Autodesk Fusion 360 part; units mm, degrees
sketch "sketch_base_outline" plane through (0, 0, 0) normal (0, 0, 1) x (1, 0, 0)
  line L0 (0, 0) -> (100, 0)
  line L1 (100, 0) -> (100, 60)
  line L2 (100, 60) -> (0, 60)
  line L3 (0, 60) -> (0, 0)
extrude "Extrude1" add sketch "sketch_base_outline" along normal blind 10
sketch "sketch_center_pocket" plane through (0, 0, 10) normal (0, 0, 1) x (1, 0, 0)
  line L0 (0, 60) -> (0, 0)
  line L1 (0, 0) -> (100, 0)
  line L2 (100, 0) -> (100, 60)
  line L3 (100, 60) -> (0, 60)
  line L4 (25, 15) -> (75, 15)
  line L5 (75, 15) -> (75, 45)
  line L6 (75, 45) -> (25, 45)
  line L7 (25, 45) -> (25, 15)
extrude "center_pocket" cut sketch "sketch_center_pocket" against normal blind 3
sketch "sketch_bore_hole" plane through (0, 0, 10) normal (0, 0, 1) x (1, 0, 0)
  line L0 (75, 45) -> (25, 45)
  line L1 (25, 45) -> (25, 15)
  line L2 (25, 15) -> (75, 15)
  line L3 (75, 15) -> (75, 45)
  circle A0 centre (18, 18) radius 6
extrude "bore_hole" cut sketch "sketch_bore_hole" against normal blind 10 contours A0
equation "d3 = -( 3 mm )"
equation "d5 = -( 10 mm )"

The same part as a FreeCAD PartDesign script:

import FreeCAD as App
import Part
import Sketcher
Q = App.Units.Quantity

doc = App.newDocument("Part")
params = doc.addObject("Spreadsheet::Sheet", "Params")
for row, (alias, value) in enumerate([
    ("sketch1_width", "100 mm"),
    ("sketch1_height", "60 mm"),
    ("pad1_length", "10 mm"),
    ("sketch2_width", "100 mm"),
    ("sketch2_width2", "50 mm"),
    ("sketch2_height", "60 mm"),
    ("sketch2_height2", "30 mm"),
    ("pocket1_length", "3 mm"),
    ("sketch3_diameter", "12 mm"),
    ("pocket2_length", "10 mm"),
], start=1):
    params.set(f"A{row}", alias)
    params.set(f"B{row}", "=" + value)
    params.setAlias(f"B{row}", alias)

body = doc.addObject("PartDesign::Body", "Body")

# Sketch on XY plane
sketch1 = body.newObject("Sketcher::SketchObject", "Sketch")
sketch1.AttachmentSupport = (doc.getObject("XY_Plane"), [""])
sketch1.MapMode = "FlatFace"
sketch1.addGeometry([
    Part.LineSegment(App.Vector(0, 60, 0), App.Vector(0, 0, 0)),
    Part.LineSegment(App.Vector(0, 0, 0), App.Vector(100, 0, 0)),
    Part.LineSegment(App.Vector(100, 0, 0), App.Vector(100, 60, 0)),
    Part.LineSegment(App.Vector(100, 60, 0), App.Vector(0, 60, 0)),
], False)
sketch1.addConstraint([
    Sketcher.Constraint("Coincident", 0, 2, 1, 1),
    Sketcher.Constraint("Coincident", 1, 2, 2, 1),
    Sketcher.Constraint("Coincident", 2, 2, 3, 1),
    Sketcher.Constraint("Coincident", 3, 2, 0, 1),
    Sketcher.Constraint("Vertical", 0),
    Sketcher.Constraint("Horizontal", 1),
    Sketcher.Constraint("Vertical", 2),
    Sketcher.Constraint("Horizontal", 3),
    Sketcher.Constraint("Coincident", 0, 2, -1, 1),
    Sketcher.Constraint("DistanceX", 1, 1, 1, 2, Q("100 mm")),
    Sketcher.Constraint("DistanceY", 0, 2, 0, 1, Q("60 mm")),
])
sketch1.setExpression("Constraints[9]", "Params.sketch1_width")
sketch1.setExpression("Constraints[10]", "Params.sketch1_height")
pad1 = body.newObject("PartDesign::Pad", "Pad")
pad1.Profile = sketch1
pad1.setExpression("Length", "Params.pad1_length")

# Sketch on XY plane
sketch2 = body.newObject("Sketcher::SketchObject", "Sketch001")
sketch2.AttachmentSupport = (doc.getObject("XY_Plane"), [""])
sketch2.MapMode = "FlatFace"
sketch2.AttachmentOffset = App.Placement(App.Vector(0, 0, 10), App.Rotation())
sketch2.addGeometry([
    Part.LineSegment(App.Vector(100, 60, 0), App.Vector(0, 60, 0)),  # 0
    Part.LineSegment(App.Vector(0, 60, 0), App.Vector(0, 0, 0)),  # 1
    Part.LineSegment(App.Vector(0, 0, 0), App.Vector(100, 0, 0)),  # 2
    Part.LineSegment(App.Vector(100, 0, 0), App.Vector(100, 60, 0)),  # 3
    Part.LineSegment(App.Vector(75, 15, 0), App.Vector(25, 15, 0)),  # 4
    Part.LineSegment(App.Vector(25, 15, 0), App.Vector(25, 45, 0)),  # 5
    Part.LineSegment(App.Vector(25, 45, 0), App.Vector(75, 45, 0)),  # 6
    Part.LineSegment(App.Vector(75, 45, 0), App.Vector(75, 15, 0)),  # 7
], False)
sketch2.addConstraint([
    Sketcher.Constraint("Coincident", 0, 2, 1, 1),
    Sketcher.Constraint("Coincident", 1, 2, 2, 1),
    Sketcher.Constraint("Coincident", 2, 2, 3, 1),
    Sketcher.Constraint("Coincident", 3, 2, 0, 1),
    Sketcher.Constraint("Coincident", 4, 2, 5, 1),
    Sketcher.Constraint("Coincident", 5, 2, 6, 1),
    Sketcher.Constraint("Coincident", 6, 2, 7, 1),
    Sketcher.Constraint("Coincident", 7, 2, 4, 1),
    Sketcher.Constraint("Horizontal", 0),
    Sketcher.Constraint("Vertical", 1),
    Sketcher.Constraint("Horizontal", 2),
    Sketcher.Constraint("Vertical", 3),
    Sketcher.Constraint("Horizontal", 4),
    Sketcher.Constraint("Vertical", 5),
    Sketcher.Constraint("Horizontal", 6),
    Sketcher.Constraint("Vertical", 7),
    Sketcher.Constraint("Coincident", 1, 2, -1, 1),
    Sketcher.Constraint("DistanceX", 0, 2, 0, 1, Q("100 mm")),
    Sketcher.Constraint("DistanceX", 4, 2, 4, 1, Q("50 mm")),
    Sketcher.Constraint("DistanceY", 1, 2, 1, 1, Q("60 mm")),
    Sketcher.Constraint("DistanceY", 5, 1, 5, 2, Q("30 mm")),
    Sketcher.Constraint("DistanceX", -1, 1, 4, 2, Q("25 mm")),
    Sketcher.Constraint("DistanceY", -1, 1, 4, 2, Q("15 mm")),
])
sketch2.setExpression("Constraints[17]", "Params.sketch2_width")
sketch2.setExpression("Constraints[18]", "Params.sketch2_width2")
sketch2.setExpression("Constraints[19]", "Params.sketch2_height")
sketch2.setExpression("Constraints[20]", "Params.sketch2_height2")
pocket1 = body.newObject("PartDesign::Pocket", "Pocket")
pocket1.Profile = sketch2
pocket1.setExpression("Length", "Params.pocket1_length")

# Sketch on XY plane
sketch3 = body.newObject("Sketcher::SketchObject", "Sketch002")
sketch3.AttachmentSupport = (doc.getObject("XY_Plane"), [""])
sketch3.MapMode = "FlatFace"
sketch3.AttachmentOffset = App.Placement(App.Vector(0, 0, 10), App.Rotation())
sketch3.addGeometry(Part.Circle(App.Vector(18, 18, 0), App.Vector(0, 0, 1), 6), False)
sketch3.addConstraint([
    Sketcher.Constraint("Diameter", 0, Q("12 mm")),
    Sketcher.Constraint("DistanceX", -1, 1, 0, 3, Q("18 mm")),
    Sketcher.Constraint("DistanceY", -1, 1, 0, 3, Q("18 mm")),
])
sketch3.setExpression("Constraints[0]", "Params.sketch3_diameter")
pocket2 = body.newObject("PartDesign::Pocket", "Pocket001")
pocket2.Profile = sketch3
pocket2.setExpression("Length", "Params.pocket2_length")

doc.recompute()
